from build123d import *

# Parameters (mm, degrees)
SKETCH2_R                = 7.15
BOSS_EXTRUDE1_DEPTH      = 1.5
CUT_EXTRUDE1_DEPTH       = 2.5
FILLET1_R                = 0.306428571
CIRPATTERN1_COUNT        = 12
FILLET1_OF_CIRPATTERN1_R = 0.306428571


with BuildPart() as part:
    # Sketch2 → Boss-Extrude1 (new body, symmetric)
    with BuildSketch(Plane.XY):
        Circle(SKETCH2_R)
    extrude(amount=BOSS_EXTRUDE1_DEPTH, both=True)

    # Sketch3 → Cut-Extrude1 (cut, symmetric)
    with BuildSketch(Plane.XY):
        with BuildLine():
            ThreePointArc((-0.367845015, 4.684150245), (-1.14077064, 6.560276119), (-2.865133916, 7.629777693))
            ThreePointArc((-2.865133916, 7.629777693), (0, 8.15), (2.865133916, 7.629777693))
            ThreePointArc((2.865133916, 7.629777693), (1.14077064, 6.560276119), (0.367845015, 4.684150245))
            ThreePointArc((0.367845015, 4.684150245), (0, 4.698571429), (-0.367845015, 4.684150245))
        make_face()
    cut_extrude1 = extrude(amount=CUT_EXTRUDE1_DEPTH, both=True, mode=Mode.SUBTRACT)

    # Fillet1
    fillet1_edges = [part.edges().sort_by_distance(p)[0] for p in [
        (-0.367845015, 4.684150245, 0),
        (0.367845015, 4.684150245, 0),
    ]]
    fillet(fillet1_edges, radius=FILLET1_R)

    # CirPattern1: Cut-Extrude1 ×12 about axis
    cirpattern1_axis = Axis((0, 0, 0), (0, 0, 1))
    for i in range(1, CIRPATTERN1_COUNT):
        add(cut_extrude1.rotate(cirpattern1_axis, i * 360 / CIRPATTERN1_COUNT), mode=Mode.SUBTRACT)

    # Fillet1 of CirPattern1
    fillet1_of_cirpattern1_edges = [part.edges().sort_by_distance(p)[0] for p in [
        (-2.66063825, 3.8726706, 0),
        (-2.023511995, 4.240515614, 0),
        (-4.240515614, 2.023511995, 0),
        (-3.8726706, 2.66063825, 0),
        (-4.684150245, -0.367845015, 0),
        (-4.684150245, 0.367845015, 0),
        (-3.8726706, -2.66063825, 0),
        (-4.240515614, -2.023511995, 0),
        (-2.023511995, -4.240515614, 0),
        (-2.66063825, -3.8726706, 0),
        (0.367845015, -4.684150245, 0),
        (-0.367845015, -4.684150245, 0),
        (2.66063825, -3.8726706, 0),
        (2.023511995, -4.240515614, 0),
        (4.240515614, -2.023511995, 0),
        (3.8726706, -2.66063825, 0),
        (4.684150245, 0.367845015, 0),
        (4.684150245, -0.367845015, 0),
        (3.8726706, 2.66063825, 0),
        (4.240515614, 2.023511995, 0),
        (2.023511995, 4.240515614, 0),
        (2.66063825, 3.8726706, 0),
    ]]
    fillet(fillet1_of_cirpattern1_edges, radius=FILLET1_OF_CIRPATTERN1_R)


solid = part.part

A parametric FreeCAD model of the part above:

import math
import FreeCAD as App
import Part
import Sketcher
Q = App.Units.Quantity


def edges_at(feature, points):
    """Names of the edges that pass closest to the given points."""
    edges = feature.Shape.Edges
    near = lambda p: min(range(len(edges)), key=lambda i: edges[i].distToShape(Part.Vertex(*p))[0])
    return sorted({f"Edge{near(p) + 1}" for p in points})

doc = App.newDocument("Part")
params = doc.addObject("Spreadsheet::Sheet", "Params")
for row, (alias, value) in enumerate([
    ("sketch1_diameter", "14.3 mm"),
    ("pad1_length", "3 mm"),
    ("sketch2_radius", "8.15 mm"),
    ("pocket1_length", "5 mm"),
    ("fillet_radius", "0.306429 mm"),
    ("fillet2_radius", "0.306429 mm"),
], start=1):
    params.set(f"A{row}", alias)
    params.set(f"B{row}", "=" + value)
    params.setAlias(f"B{row}", alias)

body = doc.addObject("PartDesign::Body", "Body")

sketch1 = doc.addObject("Sketcher::SketchObject", "Sketch")
body.addObject(sketch1)
sketch1.AttachmentSupport = (doc.XY_Plane, [""])
sketch1.MapMode = "FlatFace"
sketch1.addGeometry(Part.Circle(App.Vector(0, 0, 0), App.Vector(0, 0, 1), 7), False)
sketch1.addConstraint(Sketcher.Constraint("Coincident", 0, 3, -1, 1))
sketch1.addConstraint(Sketcher.Constraint("Diameter", 0, Q("14.3 mm")))
sketch1.setExpression("Constraints[1]", "Params.sketch1_diameter")
pad1 = doc.addObject("PartDesign::Pad", "Pad")
body.addObject(pad1)
pad1.Profile = sketch1
pad1.setExpression("Length", "Params.pad1_length")
pad1.Midplane = True

sketch2 = doc.addObject("Sketcher::SketchObject", "Sketch001")
body.addObject(sketch2)
sketch2.AttachmentSupport = (doc.XY_Plane, [""])
sketch2.MapMode = "FlatFace"
sketch2.addGeometry(Part.ArcOfCircle(Part.Circle(App.Vector(-3.7, 4.4, 0), App.Vector(0, 0, 1), 3.3), math.radians(4), math.radians(76)), False)
sketch2.addGeometry(Part.ArcOfCircle(Part.Circle(App.Vector(0, 0, 0), App.Vector(0, 0, 1), 4.7), math.radians(85.51), math.radians(94.49)), False)
sketch2.addGeometry(Part.ArcOfCircle(Part.Circle(App.Vector(3.7, 4.4, 0), App.Vector(0, 0, 1), 3.3), math.radians(104), math.radians(176)), False)
sketch2.addGeometry(Part.ArcOfCircle(Part.Circle(App.Vector(0, 0, 0), App.Vector(0, 0, 1), 8.2), math.radians(69), math.radians(111)), False)
sketch2.addConstraint(Sketcher.Constraint("Coincident", 0, 1, 1, 2))
sketch2.addConstraint(Sketcher.Constraint("Coincident", 1, 1, 2, 2))
sketch2.addConstraint(Sketcher.Constraint("Coincident", 2, 1, 3, 1))
sketch2.addConstraint(Sketcher.Constraint("Coincident", 3, 2, 0, 2))
sketch2.addConstraint(Sketcher.Constraint("Coincident", 1, 3, -1, 1))
sketch2.addConstraint(Sketcher.Constraint("Coincident", 3, 3, -1, 1))
sketch2.addConstraint(Sketcher.Constraint("Equal", 0, 2))
sketch2.addConstraint(Sketcher.Constraint("Symmetric", 0, 3, 2, 3, -2))
sketch2.addConstraint(Sketcher.Constraint("Radius", 3, Q("8.15 mm")))
sketch2.addConstraint(Sketcher.Constraint("Radius", 1, Q("4.698571 mm")))
sketch2.addConstraint(Sketcher.Constraint("Radius", 0, Q("3.300814 mm")))
sketch2.addConstraint(Sketcher.Constraint("DistanceY", -1, 1, 0, 1, Q("4.68415 mm")))
sketch2.addConstraint(Sketcher.Constraint("DistanceX", 1, 1, 2, 1, Q("2.497289 mm")))
sketch2.setExpression("Constraints[8]", "Params.sketch2_radius")
pocket1 = doc.addObject("PartDesign::Pocket", "Pocket")
body.addObject(pocket1)
pocket1.Profile = sketch2
pocket1.setExpression("Length", "Params.pocket1_length")
pocket1.Midplane = True
doc.recompute()

fillet = doc.addObject("PartDesign::Fillet", "Fillet")
body.addObject(fillet)
fillet.Base = (pocket1, edges_at(pocket1, [(-0.368, 4.684, 0), (0.368, 4.684, 0)]))
fillet.setExpression("Radius", "Params.fillet_radius")
doc.recompute()

polarpattern = doc.addObject("PartDesign::PolarPattern", "PolarPattern")
body.addObject(polarpattern)
polarpattern.Originals = [pocket1]
polarpattern.Axis = (doc.Z_Axis, [""])
polarpattern.Angle = 360
polarpattern.Occurrences = 12
body.Tip = polarpattern
doc.recompute()

fillet2 = doc.addObject("PartDesign::Fillet", "Fillet001")
body.addObject(fillet2)
fillet2.Base = (polarpattern, edges_at(polarpattern, [
    (-2.661, 3.873, 0),
    (-2.024, 4.241, 0),
    (-4.241, 2.024, 0),
    (-3.873, 2.661, 0),
    (-4.684, -0.368, 0),
    (-4.684, 0.368, 0),
    (-3.873, -2.661, 0),
    (-4.241, -2.024, 0),
    (-2.024, -4.241, 0),
    (-2.661, -3.873, 0),
    (0.368, -4.684, 0),
    (-0.368, -4.684, 0),
    (2.661, -3.873, 0),
    (2.024, -4.241, 0),
    (4.241, -2.024, 0),
    (3.873, -2.661, 0),
    (4.684, 0.368, 0),
    (4.684, -0.368, 0),
    (3.873, 2.661, 0),
    (4.241, 2.024, 0),
    (2.024, 4.241, 0),
    (2.661, 3.873, 0),
]))
fillet2.setExpression("Radius", "Params.fillet2_radius")

doc.recompute()
